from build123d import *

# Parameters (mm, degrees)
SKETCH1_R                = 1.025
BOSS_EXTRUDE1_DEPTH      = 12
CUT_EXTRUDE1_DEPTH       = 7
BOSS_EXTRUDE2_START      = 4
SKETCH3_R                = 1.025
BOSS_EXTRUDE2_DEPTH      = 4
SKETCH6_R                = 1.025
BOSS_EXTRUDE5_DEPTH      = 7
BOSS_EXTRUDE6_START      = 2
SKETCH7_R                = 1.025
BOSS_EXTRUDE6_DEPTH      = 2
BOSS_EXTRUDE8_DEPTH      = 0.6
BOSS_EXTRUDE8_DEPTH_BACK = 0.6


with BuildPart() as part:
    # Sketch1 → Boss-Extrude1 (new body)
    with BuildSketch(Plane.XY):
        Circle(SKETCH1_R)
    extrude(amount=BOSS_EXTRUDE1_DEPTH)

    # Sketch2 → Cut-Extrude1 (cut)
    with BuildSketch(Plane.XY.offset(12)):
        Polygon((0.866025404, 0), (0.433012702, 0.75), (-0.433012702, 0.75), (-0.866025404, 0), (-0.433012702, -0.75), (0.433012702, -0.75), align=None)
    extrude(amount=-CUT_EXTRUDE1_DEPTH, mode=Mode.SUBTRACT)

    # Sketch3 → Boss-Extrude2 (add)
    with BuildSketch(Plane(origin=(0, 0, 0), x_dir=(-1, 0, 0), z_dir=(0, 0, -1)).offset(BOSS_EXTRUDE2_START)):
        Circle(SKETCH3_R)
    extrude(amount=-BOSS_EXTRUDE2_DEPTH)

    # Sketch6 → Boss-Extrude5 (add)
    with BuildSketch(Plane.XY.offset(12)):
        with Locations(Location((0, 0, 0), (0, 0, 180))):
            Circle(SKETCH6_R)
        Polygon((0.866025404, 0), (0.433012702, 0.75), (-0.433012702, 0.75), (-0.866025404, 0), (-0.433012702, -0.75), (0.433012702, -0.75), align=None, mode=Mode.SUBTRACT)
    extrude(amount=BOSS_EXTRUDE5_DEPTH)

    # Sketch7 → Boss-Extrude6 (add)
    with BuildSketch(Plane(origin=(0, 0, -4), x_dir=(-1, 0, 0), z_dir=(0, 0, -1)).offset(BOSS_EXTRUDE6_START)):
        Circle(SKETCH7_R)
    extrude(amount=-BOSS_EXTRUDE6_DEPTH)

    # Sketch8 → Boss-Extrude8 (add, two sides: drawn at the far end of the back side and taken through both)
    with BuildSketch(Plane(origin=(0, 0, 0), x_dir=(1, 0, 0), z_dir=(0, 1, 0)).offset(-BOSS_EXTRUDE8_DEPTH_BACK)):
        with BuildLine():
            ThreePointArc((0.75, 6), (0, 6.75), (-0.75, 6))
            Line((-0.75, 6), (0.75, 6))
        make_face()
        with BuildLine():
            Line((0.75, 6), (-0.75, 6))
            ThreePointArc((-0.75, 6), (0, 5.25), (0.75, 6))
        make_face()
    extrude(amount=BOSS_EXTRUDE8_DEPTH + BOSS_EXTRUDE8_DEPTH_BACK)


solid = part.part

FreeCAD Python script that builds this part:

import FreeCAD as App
import Part
import Sketcher
Q = App.Units.Quantity

doc = App.newDocument("Part")
body = doc.addObject("PartDesign::Body", "Body")

sketch1 = doc.addObject("Sketcher::SketchObject", "Sketch")
body.addObject(sketch1)
sketch1.AttachmentSupport = (doc.XY_Plane, [""])
sketch1.MapMode = "FlatFace"
sketch1.addGeometry(Part.Circle(App.Vector(0, 0, 0), App.Vector(0, 0, 1), 1.025), False)
sketch1.addConstraint([
    Sketcher.Constraint("Coincident", 0, 3, -1, 1),
    Sketcher.Constraint("Diameter", 0, Q("2.05 mm")),
])
pad1 = doc.addObject("PartDesign::Pad", "Pad")
body.addObject(pad1)
pad1.Profile = sketch1
pad1.Length = 12

sketch2 = doc.addObject("Sketcher::SketchObject", "Sketch001")
body.addObject(sketch2)
sketch2.AttachmentSupport = (doc.XY_Plane, [""])
sketch2.MapMode = "FlatFace"
sketch2.AttachmentOffset = App.Placement(App.Vector(0, 0, 12), App.Rotation())
sketch2.addGeometry([
    Part.LineSegment(App.Vector(0.866025, 0, 0), App.Vector(0.433013, 0.75, 0)),
    Part.LineSegment(App.Vector(0.433013, 0.75, 0), App.Vector(-0.433013, 0.75, 0)),
    Part.LineSegment(App.Vector(-0.433013, 0.75, 0), App.Vector(-0.866025, 0, 0)),
    Part.LineSegment(App.Vector(-0.866025, 0, 0), App.Vector(-0.433013, -0.75, 0)),
    Part.LineSegment(App.Vector(-0.433013, -0.75, 0), App.Vector(0.433013, -0.75, 0)),
    Part.LineSegment(App.Vector(0.433013, -0.75, 0), App.Vector(0.866025, 0, 0)),
], False)
sketch2.addConstraint([
    Sketcher.Constraint("Coincident", 0, 2, 1, 1),
    Sketcher.Constraint("Coincident", 1, 2, 2, 1),
    Sketcher.Constraint("Coincident", 2, 2, 3, 1),
    Sketcher.Constraint("Coincident", 3, 2, 4, 1),
    Sketcher.Constraint("Coincident", 4, 2, 5, 1),
    Sketcher.Constraint("Coincident", 5, 2, 0, 1),
    Sketcher.Constraint("Horizontal", 1),
    Sketcher.Constraint("Horizontal", 4),
    Sketcher.Constraint("Symmetric", 0, 2, 3, 2, -1, 1),
    Sketcher.Constraint("Symmetric", 2, 2, 5, 2, -1, 1),
    Sketcher.Constraint("PointOnObject", 2, 2, -1),
    Sketcher.Constraint("Parallel", 2, 5),
    Sketcher.Constraint("Vertical", 1, 2, 3, 2),
    Sketcher.Constraint("Angle", 0, Q("120 deg")),
    Sketcher.Constraint("DistanceY", 3, 2, 1, 2, Q("1.5 mm")),
    Sketcher.Constraint("DistanceX", 1, 2, 1, 1, Q("0.866025 mm")),
])
pocket1 = doc.addObject("PartDesign::Pocket", "Pocket")
body.addObject(pocket1)
pocket1.Profile = sketch2
pocket1.Length = 7

sketch3 = doc.addObject("Sketcher::SketchObject", "Sketch002")
body.addObject(sketch3)
sketch3.AttachmentSupport = (doc.XY_Plane, [""])
sketch3.MapMode = "FlatFace"
sketch3.AttachmentOffset = App.Placement(App.Vector(0, 0, -4), App.Rotation())
sketch3.addGeometry(Part.Circle(App.Vector(0, 0, 0), App.Vector(0, 0, 1), 1.025), False)
sketch3.addConstraint([
    Sketcher.Constraint("Coincident", 0, 3, -1, 1),
    Sketcher.Constraint("Diameter", 0, Q("2.05 mm")),
])
pad2 = doc.addObject("PartDesign::Pad", "Pad001")
body.addObject(pad2)
pad2.Profile = sketch3
pad2.Length = 4

sketch4 = doc.addObject("Sketcher::SketchObject", "Sketch003")
body.addObject(sketch4)
sketch4.AttachmentSupport = (doc.XY_Plane, [""])
sketch4.MapMode = "FlatFace"
sketch4.AttachmentOffset = App.Placement(App.Vector(0, 0, 12), App.Rotation())
sketch4.addGeometry([
    Part.Circle(App.Vector(0, 0, 0), App.Vector(0, 0, 1), 1.025),
    Part.LineSegment(App.Vector(0.433013, 0.75, 0), App.Vector(0.866025, 0, 0)),
    Part.LineSegment(App.Vector(0.866025, 0, 0), App.Vector(0.433013, -0.75, 0)),
    Part.LineSegment(App.Vector(0.433013, -0.75, 0), App.Vector(-0.433013, -0.75, 0)),
    Part.LineSegment(App.Vector(-0.433013, -0.75, 0), App.Vector(-0.866025, 0, 0)),
    Part.LineSegment(App.Vector(-0.866025, 0, 0), App.Vector(-0.433013, 0.75, 0)),
    Part.LineSegment(App.Vector(-0.433013, 0.75, 0), App.Vector(0.433013, 0.75, 0)),
], False)
sketch4.addConstraint([
    Sketcher.Constraint("Coincident", 1, 2, 2, 1),
    Sketcher.Constraint("Coincident", 2, 2, 3, 1),
    Sketcher.Constraint("Coincident", 3, 2, 4, 1),
    Sketcher.Constraint("Coincident", 4, 2, 5, 1),
    Sketcher.Constraint("Coincident", 5, 2, 6, 1),
    Sketcher.Constraint("Coincident", 6, 2, 1, 1),
    Sketcher.Constraint("Horizontal", 3),
    Sketcher.Constraint("Horizontal", 6),
    Sketcher.Constraint("Coincident", 0, 3, -1, 1),
    Sketcher.Constraint("Symmetric", 1, 2, 4, 2, -1, 1),
    Sketcher.Constraint("Symmetric", 2, 2, 5, 2, -1, 1),
    Sketcher.Constraint("PointOnObject", 1, 2, -1),
    Sketcher.Constraint("Parallel", 1, 4),
    Sketcher.Constraint("Vertical", 3, 2, 5, 2),
    Sketcher.Constraint("Diameter", 0, Q("2.05 mm")),
    Sketcher.Constraint("Angle", 1, Q("-60 deg")),
    Sketcher.Constraint("DistanceY", 3, 2, 5, 2, Q("1.5 mm")),
    Sketcher.Constraint("DistanceX", 3, 2, 3, 1, Q("0.866025 mm")),
])
pad3 = doc.addObject("PartDesign::Pad", "Pad002")
body.addObject(pad3)
pad3.Profile = sketch4
pad3.Length = 7

sketch5 = doc.addObject("Sketcher::SketchObject", "Sketch004")
body.addObject(sketch5)
sketch5.AttachmentSupport = (doc.XY_Plane, [""])
sketch5.MapMode = "FlatFace"
sketch5.AttachmentOffset = App.Placement(App.Vector(0, 0, -6), App.Rotation())
sketch5.addGeometry(Part.Circle(App.Vector(0, 0, 0), App.Vector(0, 0, 1), 1.025), False)
sketch5.addConstraint([
    Sketcher.Constraint("Coincident", 0, 3, -1, 1),
    Sketcher.Constraint("Diameter", 0, Q("2.05 mm")),
])
pad4 = doc.addObject("PartDesign::Pad", "Pad003")
body.addObject(pad4)
pad4.Profile = sketch5
pad4.Length = 2

sketch6 = doc.addObject("Sketcher::SketchObject", "Sketch005")
body.addObject(sketch6)
sketch6.AttachmentSupport = (doc.XZ_Plane, [""])
sketch6.MapMode = "FlatFace"
sketch6.addGeometry(Part.Circle(App.Vector(0, -6, 0), App.Vector(0, 0, 1), 0.75), False)
sketch6.addConstraint([
    Sketcher.Constraint("PointOnObject", 0, 3, -2),
    Sketcher.Constraint("Diameter", 0, Q("1.5 mm")),
    Sketcher.Constraint("DistanceY", 0, 3, -1, 1, Q("6 mm")),
])
pad5 = doc.addObject("PartDesign::Pad", "Pad004")
body.addObject(pad5)
pad5.Profile = sketch6
pad5.Type = "TwoLengths"
pad5.Length = 0.6
pad5.Length2 = 0.6
pad5.Reversed = True

doc.recompute()
